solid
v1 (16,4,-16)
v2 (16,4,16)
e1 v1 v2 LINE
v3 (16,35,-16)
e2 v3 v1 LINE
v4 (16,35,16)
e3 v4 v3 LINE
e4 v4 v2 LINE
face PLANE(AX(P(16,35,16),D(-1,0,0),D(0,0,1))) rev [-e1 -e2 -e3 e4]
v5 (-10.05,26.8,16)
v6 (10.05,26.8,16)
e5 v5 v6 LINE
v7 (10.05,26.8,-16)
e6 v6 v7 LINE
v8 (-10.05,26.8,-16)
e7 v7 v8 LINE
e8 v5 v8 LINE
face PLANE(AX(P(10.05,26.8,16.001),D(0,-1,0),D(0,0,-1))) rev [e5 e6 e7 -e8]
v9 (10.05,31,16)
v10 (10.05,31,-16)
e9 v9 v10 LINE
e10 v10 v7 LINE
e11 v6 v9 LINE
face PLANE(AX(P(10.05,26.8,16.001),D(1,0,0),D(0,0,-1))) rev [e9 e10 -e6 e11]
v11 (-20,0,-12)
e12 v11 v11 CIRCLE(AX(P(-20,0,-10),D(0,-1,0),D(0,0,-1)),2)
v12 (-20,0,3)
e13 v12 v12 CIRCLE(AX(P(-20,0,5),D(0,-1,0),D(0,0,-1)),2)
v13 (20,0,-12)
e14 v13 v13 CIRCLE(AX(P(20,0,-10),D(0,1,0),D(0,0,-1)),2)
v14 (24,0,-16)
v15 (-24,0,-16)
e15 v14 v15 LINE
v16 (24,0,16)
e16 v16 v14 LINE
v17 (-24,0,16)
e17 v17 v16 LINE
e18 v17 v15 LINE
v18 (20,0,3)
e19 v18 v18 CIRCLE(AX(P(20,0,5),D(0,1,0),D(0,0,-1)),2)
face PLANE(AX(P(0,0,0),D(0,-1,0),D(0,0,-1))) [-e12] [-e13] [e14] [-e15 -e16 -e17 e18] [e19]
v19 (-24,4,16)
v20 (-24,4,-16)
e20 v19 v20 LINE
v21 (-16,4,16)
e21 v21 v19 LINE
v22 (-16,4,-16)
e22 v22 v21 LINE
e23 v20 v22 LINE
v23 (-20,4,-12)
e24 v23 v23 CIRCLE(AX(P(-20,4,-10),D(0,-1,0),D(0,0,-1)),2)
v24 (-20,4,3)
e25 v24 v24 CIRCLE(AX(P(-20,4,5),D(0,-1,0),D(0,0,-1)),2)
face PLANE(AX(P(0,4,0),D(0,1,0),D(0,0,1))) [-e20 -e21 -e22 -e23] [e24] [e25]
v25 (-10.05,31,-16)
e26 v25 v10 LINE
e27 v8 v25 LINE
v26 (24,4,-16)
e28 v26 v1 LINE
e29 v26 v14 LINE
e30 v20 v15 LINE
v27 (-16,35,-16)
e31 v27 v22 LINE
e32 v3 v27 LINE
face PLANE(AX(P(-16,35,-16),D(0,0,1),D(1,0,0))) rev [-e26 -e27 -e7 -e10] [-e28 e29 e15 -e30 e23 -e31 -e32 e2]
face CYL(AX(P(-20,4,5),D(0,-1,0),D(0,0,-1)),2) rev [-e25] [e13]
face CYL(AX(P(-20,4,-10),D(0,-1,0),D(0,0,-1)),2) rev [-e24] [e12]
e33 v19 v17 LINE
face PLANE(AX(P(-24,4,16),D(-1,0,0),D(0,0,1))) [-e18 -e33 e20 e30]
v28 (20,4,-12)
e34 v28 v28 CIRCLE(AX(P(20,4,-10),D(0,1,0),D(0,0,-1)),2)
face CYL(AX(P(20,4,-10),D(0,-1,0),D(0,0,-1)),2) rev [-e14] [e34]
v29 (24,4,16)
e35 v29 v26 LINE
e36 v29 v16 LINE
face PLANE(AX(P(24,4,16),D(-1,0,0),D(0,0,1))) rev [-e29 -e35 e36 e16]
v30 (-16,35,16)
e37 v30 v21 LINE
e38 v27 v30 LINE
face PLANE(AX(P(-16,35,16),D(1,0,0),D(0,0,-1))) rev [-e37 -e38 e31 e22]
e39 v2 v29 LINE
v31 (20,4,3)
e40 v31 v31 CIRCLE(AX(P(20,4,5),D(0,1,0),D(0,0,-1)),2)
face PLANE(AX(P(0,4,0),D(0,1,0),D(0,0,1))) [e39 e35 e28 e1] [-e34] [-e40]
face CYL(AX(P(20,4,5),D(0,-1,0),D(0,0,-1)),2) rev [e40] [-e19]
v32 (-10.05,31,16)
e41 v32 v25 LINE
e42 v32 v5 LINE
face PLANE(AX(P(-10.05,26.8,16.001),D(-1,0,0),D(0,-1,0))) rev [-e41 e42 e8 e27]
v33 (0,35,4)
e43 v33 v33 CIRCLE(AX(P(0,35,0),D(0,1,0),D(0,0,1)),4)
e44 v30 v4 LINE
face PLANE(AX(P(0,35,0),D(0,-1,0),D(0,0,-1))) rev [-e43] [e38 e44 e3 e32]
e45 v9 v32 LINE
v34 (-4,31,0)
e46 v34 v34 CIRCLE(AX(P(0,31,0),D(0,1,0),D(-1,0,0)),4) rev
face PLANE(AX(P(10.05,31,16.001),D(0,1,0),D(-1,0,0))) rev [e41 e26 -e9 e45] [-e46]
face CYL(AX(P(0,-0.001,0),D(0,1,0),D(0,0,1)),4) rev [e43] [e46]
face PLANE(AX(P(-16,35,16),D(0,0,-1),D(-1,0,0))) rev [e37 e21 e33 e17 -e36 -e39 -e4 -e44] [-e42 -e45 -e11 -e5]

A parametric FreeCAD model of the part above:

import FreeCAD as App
import Part
import Sketcher

doc = App.newDocument("Part")
body = doc.addObject("PartDesign::Body", "Body")

sketch1 = doc.addObject("Sketcher::SketchObject", "Sketch")
body.addObject(sketch1)
sketch1.AttachmentSupport = (doc.XZ_Plane, [""])
sketch1.MapMode = "FlatFace"
sketch1.addGeometry([
    Part.LineSegment(App.Vector(-16, -16, 0), App.Vector(-16, 16, 0)),
    Part.LineSegment(App.Vector(-16, 16, 0), App.Vector(16, 16, 0)),
    Part.LineSegment(App.Vector(16, 16, 0), App.Vector(16, -16, 0)),
    Part.LineSegment(App.Vector(16, -16, 0), App.Vector(-16, -16, 0)),
], False)
sketch1.addConstraint([
    Sketcher.Constraint("Coincident", 0, 2, 1, 1),
    Sketcher.Constraint("Coincident", 1, 2, 2, 1),
    Sketcher.Constraint("Coincident", 2, 2, 3, 1),
    Sketcher.Constraint("Coincident", 3, 2, 0, 1),
    Sketcher.Constraint("Vertical", 0),
    Sketcher.Constraint("Horizontal", 1),
    Sketcher.Constraint("Vertical", 2),
    Sketcher.Constraint("Horizontal", 3),
    Sketcher.Constraint("Symmetric", 0, 2, 2, 2, -1, 1),
    Sketcher.Constraint("Equal", 3, 0),
    Sketcher.Constraint("DistanceX", 1, 1, 1, 2, 32.0),
])
pad1 = doc.addObject("PartDesign::Pad", "Pad")
body.addObject(pad1)
pad1.Profile = sketch1
pad1.Length = 35
pad1.Reversed = True

sketch2 = doc.addObject("Sketcher::SketchObject", "Sketch001")
body.addObject(sketch2)
sketch2.AttachmentSupport = (doc.XZ_Plane, [""])
sketch2.MapMode = "FlatFace"
sketch2.addGeometry([
    Part.LineSegment(App.Vector(-24, 16, 0), App.Vector(-24, -16, 0)),
    Part.LineSegment(App.Vector(-24, -16, 0), App.Vector(-16, -16, 0)),
    Part.LineSegment(App.Vector(-16, -16, 0), App.Vector(-16, 16, 0)),
    Part.LineSegment(App.Vector(-16, 16, 0), App.Vector(-24, 16, 0)),
    Part.Circle(App.Vector(-20, -10, 0), App.Vector(0, 0, 1), 2),
    Part.Circle(App.Vector(-20, 5, 0), App.Vector(0, 0, 1), 2),
], False)
sketch2.addConstraint([
    Sketcher.Constraint("Coincident", 0, 2, 1, 1),
    Sketcher.Constraint("Coincident", 1, 2, 2, 1),
    Sketcher.Constraint("Coincident", 2, 2, 3, 1),
    Sketcher.Constraint("Coincident", 3, 2, 0, 1),
    Sketcher.Constraint("Vertical", 0),
    Sketcher.Constraint("Horizontal", 1),
    Sketcher.Constraint("Vertical", 2),
    Sketcher.Constraint("Horizontal", 3),
    Sketcher.Constraint("Equal", 4, 5),
    Sketcher.Constraint("Vertical", 4, 3, 5, 3),
    Sketcher.Constraint("Diameter", 4, 4.0),
    Sketcher.Constraint("DistanceX", 1, 1, 1, 2, 8.0),
    Sketcher.Constraint("DistanceY", 0, 2, 0, 1, 32.0),
    Sketcher.Constraint("DistanceX", 4, 3, -1, 1, 20.0),
    Sketcher.Constraint("DistanceY", 4, 3, -1, 1, 10.0),
    Sketcher.Constraint("DistanceY", -1, 1, 5, 3, 5.0),
    Sketcher.Constraint("DistanceX", 0, 2, -1, 1, 24.0),
    Sketcher.Constraint("DistanceY", 0, 2, -1, 1, 16.0),
])
pad2 = doc.addObject("PartDesign::Pad", "Pad001")
body.addObject(pad2)
pad2.Profile = sketch2
pad2.Length = 4
pad2.Reversed = True
doc.recompute()

mirrored = doc.addObject("PartDesign::Mirrored", "Mirrored")
body.addObject(mirrored)
mirrored.Originals = [pad2]
mirrored.MirrorPlane = (doc.YZ_Plane, [""])
body.Tip = mirrored

sketch3 = doc.addObject("Sketcher::SketchObject", "Sketch002")
body.addObject(sketch3)
sketch3.AttachmentSupport = (doc.XY_Plane, [""])
sketch3.MapMode = "FlatFace"
sketch3.AttachmentOffset = App.Placement(App.Vector(0, 0, -16), App.Rotation())
sketch3.addGeometry([
    Part.LineSegment(App.Vector(10.1, 31, 0), App.Vector(10.1, 26.8, 0)),
    Part.LineSegment(App.Vector(10.1, 26.8, 0), App.Vector(-10.1, 26.8, 0)),
    Part.LineSegment(App.Vector(-10.1, 26.8, 0), App.Vector(-10.1, 31, 0)),
    Part.LineSegment(App.Vector(-10.1, 31, 0), App.Vector(10.1, 31, 0)),
], False)
sketch3.addConstraint([
    Sketcher.Constraint("Coincident", 0, 2, 1, 1),
    Sketcher.Constraint("Coincident", 1, 2, 2, 1),
    Sketcher.Constraint("Coincident", 2, 2, 3, 1),
    Sketcher.Constraint("Coincident", 3, 2, 0, 1),
    Sketcher.Constraint("Vertical", 0),
    Sketcher.Constraint("Horizontal", 1),
    Sketcher.Constraint("Vertical", 2),
    Sketcher.Constraint("Horizontal", 3),
    Sketcher.Constraint("DistanceX", 1, 2, 1, 1, 20.1),
    Sketcher.Constraint("DistanceY", 0, 2, 0, 1, 4.2),
    Sketcher.Constraint("DistanceY", -1, 1, 2, 2, 31.0),
    Sketcher.Constraint("DistanceX", -1, 1, 0, 2, 10.05),
])
pocket1 = doc.addObject("PartDesign::Pocket", "Pocket")
body.addObject(pocket1)
pocket1.Profile = sketch3
pocket1.Type = "UpToFirst"
pocket1.Reversed = True

sketch4 = doc.addObject("Sketcher::SketchObject", "Sketch003")
body.addObject(sketch4)
sketch4.AttachmentSupport = (doc.XZ_Plane, [""])
sketch4.MapMode = "FlatFace"
sketch4.AttachmentOffset = App.Placement(App.Vector(0, 0, -35), App.Rotation())
sketch4.addGeometry(Part.Circle(App.Vector(0, 0, 0), App.Vector(0, 0, 1), 4), False)
sketch4.addConstraint([
    Sketcher.Constraint("Coincident", 0, 3, -1, 1),
    Sketcher.Constraint("Diameter", 0, 8.0),
])
pocket2 = doc.addObject("PartDesign::Pocket", "Pocket001")
body.addObject(pocket2)
pocket2.Profile = sketch4
pocket2.Type = "UpToFirst"
pocket2.Reversed = True

doc.recompute()
